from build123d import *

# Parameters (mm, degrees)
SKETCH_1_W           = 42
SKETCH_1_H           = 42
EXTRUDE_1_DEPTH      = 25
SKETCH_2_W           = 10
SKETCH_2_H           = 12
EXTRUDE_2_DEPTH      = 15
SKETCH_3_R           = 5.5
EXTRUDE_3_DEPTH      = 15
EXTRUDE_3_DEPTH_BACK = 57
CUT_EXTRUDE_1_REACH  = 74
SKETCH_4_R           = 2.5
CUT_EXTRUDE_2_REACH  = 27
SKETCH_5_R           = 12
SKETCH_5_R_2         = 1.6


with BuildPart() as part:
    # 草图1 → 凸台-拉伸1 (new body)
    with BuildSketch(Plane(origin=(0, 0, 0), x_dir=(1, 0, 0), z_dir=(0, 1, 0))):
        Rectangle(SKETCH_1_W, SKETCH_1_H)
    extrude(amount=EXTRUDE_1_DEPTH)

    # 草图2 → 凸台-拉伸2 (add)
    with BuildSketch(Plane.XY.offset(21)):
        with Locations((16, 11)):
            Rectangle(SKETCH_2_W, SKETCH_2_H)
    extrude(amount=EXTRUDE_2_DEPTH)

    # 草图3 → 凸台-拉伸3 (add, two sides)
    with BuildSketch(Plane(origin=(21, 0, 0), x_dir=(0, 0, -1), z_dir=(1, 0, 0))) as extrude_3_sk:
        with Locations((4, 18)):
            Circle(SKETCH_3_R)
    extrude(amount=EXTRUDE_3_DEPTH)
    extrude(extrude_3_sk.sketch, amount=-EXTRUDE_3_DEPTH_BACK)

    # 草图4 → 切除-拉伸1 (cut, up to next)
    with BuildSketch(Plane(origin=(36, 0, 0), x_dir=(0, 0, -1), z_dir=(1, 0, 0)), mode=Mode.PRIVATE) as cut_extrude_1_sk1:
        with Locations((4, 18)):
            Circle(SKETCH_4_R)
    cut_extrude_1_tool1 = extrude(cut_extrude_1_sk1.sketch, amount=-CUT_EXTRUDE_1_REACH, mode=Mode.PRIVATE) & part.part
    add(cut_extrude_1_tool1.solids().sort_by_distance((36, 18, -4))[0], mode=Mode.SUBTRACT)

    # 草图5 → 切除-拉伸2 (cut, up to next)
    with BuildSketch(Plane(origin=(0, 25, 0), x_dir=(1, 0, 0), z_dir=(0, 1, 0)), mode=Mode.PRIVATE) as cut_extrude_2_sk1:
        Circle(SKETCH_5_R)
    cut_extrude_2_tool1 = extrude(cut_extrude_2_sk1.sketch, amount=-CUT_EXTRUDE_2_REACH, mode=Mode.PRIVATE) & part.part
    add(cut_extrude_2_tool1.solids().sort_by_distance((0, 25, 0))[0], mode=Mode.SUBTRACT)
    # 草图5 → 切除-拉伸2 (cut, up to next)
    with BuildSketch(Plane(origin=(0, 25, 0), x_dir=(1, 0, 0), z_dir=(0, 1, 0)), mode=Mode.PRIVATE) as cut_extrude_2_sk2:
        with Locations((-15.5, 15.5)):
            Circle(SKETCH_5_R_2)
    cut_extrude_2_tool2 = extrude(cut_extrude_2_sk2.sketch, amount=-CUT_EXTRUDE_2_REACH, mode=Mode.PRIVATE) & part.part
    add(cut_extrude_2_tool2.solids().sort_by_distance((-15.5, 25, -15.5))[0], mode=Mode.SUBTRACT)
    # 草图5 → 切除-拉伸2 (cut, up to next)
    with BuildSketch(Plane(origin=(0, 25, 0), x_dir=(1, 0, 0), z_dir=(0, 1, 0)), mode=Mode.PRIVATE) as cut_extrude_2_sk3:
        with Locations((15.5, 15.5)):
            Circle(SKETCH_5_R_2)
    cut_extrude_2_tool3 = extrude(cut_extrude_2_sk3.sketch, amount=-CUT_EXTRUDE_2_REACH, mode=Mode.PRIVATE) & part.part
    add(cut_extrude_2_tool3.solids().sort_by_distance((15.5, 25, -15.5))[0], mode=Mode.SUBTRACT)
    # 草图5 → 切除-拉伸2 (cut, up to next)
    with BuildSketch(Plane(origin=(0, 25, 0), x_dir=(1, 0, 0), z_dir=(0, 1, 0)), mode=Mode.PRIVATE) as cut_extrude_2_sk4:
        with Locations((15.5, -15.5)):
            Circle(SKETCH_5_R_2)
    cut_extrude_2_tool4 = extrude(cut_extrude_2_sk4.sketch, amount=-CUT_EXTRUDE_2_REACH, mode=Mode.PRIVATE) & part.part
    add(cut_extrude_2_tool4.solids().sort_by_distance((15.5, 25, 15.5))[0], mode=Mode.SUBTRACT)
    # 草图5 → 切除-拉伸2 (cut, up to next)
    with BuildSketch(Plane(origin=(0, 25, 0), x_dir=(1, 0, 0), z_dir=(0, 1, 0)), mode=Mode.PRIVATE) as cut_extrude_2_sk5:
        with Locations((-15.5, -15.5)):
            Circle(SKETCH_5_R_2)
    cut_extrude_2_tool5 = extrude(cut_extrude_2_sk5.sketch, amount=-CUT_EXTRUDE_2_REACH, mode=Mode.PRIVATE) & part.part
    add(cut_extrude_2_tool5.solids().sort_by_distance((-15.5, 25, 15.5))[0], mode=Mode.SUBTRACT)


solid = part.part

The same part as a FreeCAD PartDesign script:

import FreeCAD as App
import Part
import Sketcher


def add_polygon(sketch, points):
    """Adds a closed chain of lines whose ends are joined by coincident constraints."""
    first, n = sketch.GeometryCount, len(points)
    for a, b in zip(points, points[1:] + points[:1]):
        sketch.addGeometry(Part.LineSegment(App.Vector(*a, 0), App.Vector(*b, 0)), False)
    for i in range(n):
        sketch.addConstraint(Sketcher.Constraint("Coincident", first + i, 2, first + (i + 1) % n, 1))

doc = App.newDocument("Part")
params = doc.addObject("Spreadsheet::Sheet", "Params")
for row, (alias, value) in enumerate([
    ("sketch1_width", "42 mm"),
    ("pad1_length", "25 mm"),
    ("sketch2_width", "10 mm"),
    ("sketch2_height", "12 mm"),
    ("pad2_length", "15 mm"),
    ("sketch3_diameter", "11 mm"),
    ("pad3_length", "15 mm"),
    ("pad3_length2", "57 mm"),
    ("sketch4_diameter", "5 mm"),
    ("sketch5_diameter", "24 mm"),
    ("sketch6_diameter", "3.2 mm"),
    ("sketch7_diameter", "3.2 mm"),
    ("sketch8_diameter", "3.2 mm"),
    ("sketch9_diameter", "3.2 mm"),
], start=1):
    params.set(f"A{row}", alias)
    params.set(f"B{row}", "=" + value)
    params.setAlias(f"B{row}", alias)

body = doc.addObject("PartDesign::Body", "Body")

# Sketch on XZ plane
sketch1 = doc.addObject("Sketcher::SketchObject", "Sketch")
body.addObject(sketch1)
sketch1.AttachmentSupport = (doc.XZ_Plane, [""])
sketch1.MapMode = "FlatFace"
add_polygon(sketch1, [(-21, -21), (-21, 21), (21, 21), (21, -21)])  # lines 0-3
sketch1.addConstraint(Sketcher.Constraint("Vertical", 0))
sketch1.addConstraint(Sketcher.Constraint("Horizontal", 1))
sketch1.addConstraint(Sketcher.Constraint("Vertical", 2))
sketch1.addConstraint(Sketcher.Constraint("Horizontal", 3))
sketch1.addConstraint(Sketcher.Constraint("Symmetric", 0, 2, 2, 2, -1, 1))
sketch1.addConstraint(Sketcher.Constraint("Equal", 3, 0))
sketch1.addConstraint(Sketcher.Constraint("DistanceX", 1, 1, 1, 2, 42.0))
sketch1.setExpression("Constraints[10]", "Params.sketch1_width")
pad1 = doc.addObject("PartDesign::Pad", "Pad")
body.addObject(pad1)
pad1.Profile = sketch1
pad1.setExpression("Length", "Params.pad1_length")
pad1.Reversed = True

# Sketch on XY plane
sketch2 = doc.addObject("Sketcher::SketchObject", "Sketch001")
body.addObject(sketch2)
sketch2.AttachmentSupport = (doc.XY_Plane, [""])
sketch2.MapMode = "FlatFace"
sketch2.AttachmentOffset = App.Placement(App.Vector(0, 0, 21), App.Rotation())
add_polygon(sketch2, [(11, 17), (11, 5), (21, 5), (21, 17)])  # lines 0-3
sketch2.addConstraint(Sketcher.Constraint("Vertical", 0))
sketch2.addConstraint(Sketcher.Constraint("Horizontal", 1))
sketch2.addConstraint(Sketcher.Constraint("Vertical", 2))
sketch2.addConstraint(Sketcher.Constraint("Horizontal", 3))
sketch2.addConstraint(Sketcher.Constraint("DistanceX", 1, 1, 1, 2, 10.0))
sketch2.addConstraint(Sketcher.Constraint("DistanceY", 0, 2, 0, 1, 12.0))
sketch2.addConstraint(Sketcher.Constraint("DistanceX", -1, 1, 0, 2, 11.0))
sketch2.addConstraint(Sketcher.Constraint("DistanceY", -1, 1, 0, 2, 5.0))
sketch2.setExpression("Constraints[8]", "Params.sketch2_width")
sketch2.setExpression("Constraints[9]", "Params.sketch2_height")
pad2 = doc.addObject("PartDesign::Pad", "Pad001")
body.addObject(pad2)
pad2.Profile = sketch2
pad2.setExpression("Length", "Params.pad2_length")

# Sketch on YZ plane
sketch3 = doc.addObject("Sketcher::SketchObject", "Sketch002")
body.addObject(sketch3)
sketch3.AttachmentSupport = (doc.YZ_Plane, [""])
sketch3.MapMode = "FlatFace"
sketch3.AttachmentOffset = App.Placement(App.Vector(0, 0, 21), App.Rotation())
sketch3.addGeometry(Part.Circle(App.Vector(18, -4, 0), App.Vector(0, 0, 1), 6), False)
sketch3.addConstraint(Sketcher.Constraint("Diameter", 0, 11.0))
sketch3.addConstraint(Sketcher.Constraint("DistanceX", -1, 1, 0, 3, 18.0))
sketch3.addConstraint(Sketcher.Constraint("DistanceY", 0, 3, -1, 1, 4.0))
sketch3.setExpression("Constraints[0]", "Params.sketch3_diameter")
pad3 = doc.addObject("PartDesign::Pad", "Pad002")
body.addObject(pad3)
pad3.Profile = sketch3
pad3.Type = "TwoLengths"
pad3.setExpression("Length", "Params.pad3_length")
pad3.setExpression("Length2", "Params.pad3_length2")

# Sketch on YZ plane
sketch4 = doc.addObject("Sketcher::SketchObject", "Sketch003")
body.addObject(sketch4)
sketch4.AttachmentSupport = (doc.YZ_Plane, [""])
sketch4.MapMode = "FlatFace"
sketch4.AttachmentOffset = App.Placement(App.Vector(0, 0, 36), App.Rotation())
sketch4.addGeometry(Part.Circle(App.Vector(18, -4, 0), App.Vector(0, 0, 1), 2.5), False)
sketch4.addConstraint(Sketcher.Constraint("Diameter", 0, 5.0))
sketch4.addConstraint(Sketcher.Constraint("DistanceX", -1, 1, 0, 3, 18.0))
sketch4.addConstraint(Sketcher.Constraint("DistanceY", 0, 3, -1, 1, 4.0))
sketch4.setExpression("Constraints[0]", "Params.sketch4_diameter")
pocket1 = doc.addObject("PartDesign::Pocket", "Pocket")
body.addObject(pocket1)
pocket1.Profile = sketch4
pocket1.Type = "UpToFirst"

# Sketch on XZ plane
sketch5 = doc.addObject("Sketcher::SketchObject", "Sketch004")
body.addObject(sketch5)
sketch5.AttachmentSupport = (doc.XZ_Plane, [""])
sketch5.MapMode = "FlatFace"
sketch5.AttachmentOffset = App.Placement(App.Vector(0, 0, -25), App.Rotation())
sketch5.addGeometry(Part.Circle(App.Vector(0, 0, 0), App.Vector(0, 0, 1), 12), False)
sketch5.addConstraint(Sketcher.Constraint("Coincident", 0, 3, -1, 1))
sketch5.addConstraint(Sketcher.Constraint("Diameter", 0, 24.0))
sketch5.setExpression("Constraints[1]", "Params.sketch5_diameter")
pocket2 = doc.addObject("PartDesign::Pocket", "Pocket001")
body.addObject(pocket2)
pocket2.Profile = sketch5
pocket2.Type = "UpToFirst"
pocket2.Reversed = True

# Sketch on XZ plane
sketch6 = doc.addObject("Sketcher::SketchObject", "Sketch005")
body.addObject(sketch6)
sketch6.AttachmentSupport = (doc.XZ_Plane, [""])
sketch6.MapMode = "FlatFace"
sketch6.AttachmentOffset = App.Placement(App.Vector(0, 0, -25), App.Rotation())
sketch6.addGeometry(Part.Circle(App.Vector(-15.5, -15.5, 0), App.Vector(0, 0, 1), 1.6), False)
sketch6.addConstraint(Sketcher.Constraint("Diameter", 0, 3.2))
sketch6.addConstraint(Sketcher.Constraint("DistanceX", 0, 3, -1, 1, 15.5))
sketch6.addConstraint(Sketcher.Constraint("DistanceY", 0, 3, -1, 1, 15.5))
sketch6.setExpression("Constraints[0]", "Params.sketch6_diameter")
pocket3 = doc.addObject("PartDesign::Pocket", "Pocket002")
body.addObject(pocket3)
pocket3.Profile = sketch6
pocket3.Type = "UpToFirst"
pocket3.Reversed = True

# Sketch on XZ plane
sketch7 = doc.addObject("Sketcher::SketchObject", "Sketch006")
body.addObject(sketch7)
sketch7.AttachmentSupport = (doc.XZ_Plane, [""])
sketch7.MapMode = "FlatFace"
sketch7.AttachmentOffset = App.Placement(App.Vector(0, 0, -25), App.Rotation())
sketch7.addGeometry(Part.Circle(App.Vector(15.5, -15.5, 0), App.Vector(0, 0, 1), 1.6), False)
sketch7.addConstraint(Sketcher.Constraint("Diameter", 0, 3.2))
sketch7.addConstraint(Sketcher.Constraint("DistanceX", -1, 1, 0, 3, 15.5))
sketch7.addConstraint(Sketcher.Constraint("DistanceY", 0, 3, -1, 1, 15.5))
sketch7.setExpression("Constraints[0]", "Params.sketch7_diameter")
pocket4 = doc.addObject("PartDesign::Pocket", "Pocket003")
body.addObject(pocket4)
pocket4.Profile = sketch7
pocket4.Type = "UpToFirst"
pocket4.Reversed = True

# Sketch on XZ plane
sketch8 = doc.addObject("Sketcher::SketchObject", "Sketch007")
body.addObject(sketch8)
sketch8.AttachmentSupport = (doc.XZ_Plane, [""])
sketch8.MapMode = "FlatFace"
sketch8.AttachmentOffset = App.Placement(App.Vector(0, 0, -25), App.Rotation())
sketch8.addGeometry(Part.Circle(App.Vector(15.5, 15.5, 0), App.Vector(0, 0, 1), 1.6), False)
sketch8.addConstraint(Sketcher.Constraint("Diameter", 0, 3.2))
sketch8.addConstraint(Sketcher.Constraint("DistanceX", -1, 1, 0, 3, 15.5))
sketch8.addConstraint(Sketcher.Constraint("DistanceY", -1, 1, 0, 3, 15.5))
sketch8.setExpression("Constraints[0]", "Params.sketch8_diameter")
pocket5 = doc.addObject("PartDesign::Pocket", "Pocket004")
body.addObject(pocket5)
pocket5.Profile = sketch8
pocket5.Type = "UpToFirst"
pocket5.Reversed = True

# Sketch on XZ plane
sketch9 = doc.addObject("Sketcher::SketchObject", "Sketch008")
body.addObject(sketch9)
sketch9.AttachmentSupport = (doc.XZ_Plane, [""])
sketch9.MapMode = "FlatFace"
sketch9.AttachmentOffset = App.Placement(App.Vector(0, 0, -25), App.Rotation())
sketch9.addGeometry(Part.Circle(App.Vector(-15.5, 15.5, 0), App.Vector(0, 0, 1), 1.6), False)
sketch9.addConstraint(Sketcher.Constraint("Diameter", 0, 3.2))
sketch9.addConstraint(Sketcher.Constraint("DistanceX", 0, 3, -1, 1, 15.5))
sketch9.addConstraint(Sketcher.Constraint("DistanceY", -1, 1, 0, 3, 15.5))
sketch9.setExpression("Constraints[0]", "Params.sketch9_diameter")
pocket6 = doc.addObject("PartDesign::Pocket", "Pocket005")
body.addObject(pocket6)
pocket6.Profile = sketch9
pocket6.Type = "UpToFirst"
pocket6.Reversed = True

doc.recompute()
